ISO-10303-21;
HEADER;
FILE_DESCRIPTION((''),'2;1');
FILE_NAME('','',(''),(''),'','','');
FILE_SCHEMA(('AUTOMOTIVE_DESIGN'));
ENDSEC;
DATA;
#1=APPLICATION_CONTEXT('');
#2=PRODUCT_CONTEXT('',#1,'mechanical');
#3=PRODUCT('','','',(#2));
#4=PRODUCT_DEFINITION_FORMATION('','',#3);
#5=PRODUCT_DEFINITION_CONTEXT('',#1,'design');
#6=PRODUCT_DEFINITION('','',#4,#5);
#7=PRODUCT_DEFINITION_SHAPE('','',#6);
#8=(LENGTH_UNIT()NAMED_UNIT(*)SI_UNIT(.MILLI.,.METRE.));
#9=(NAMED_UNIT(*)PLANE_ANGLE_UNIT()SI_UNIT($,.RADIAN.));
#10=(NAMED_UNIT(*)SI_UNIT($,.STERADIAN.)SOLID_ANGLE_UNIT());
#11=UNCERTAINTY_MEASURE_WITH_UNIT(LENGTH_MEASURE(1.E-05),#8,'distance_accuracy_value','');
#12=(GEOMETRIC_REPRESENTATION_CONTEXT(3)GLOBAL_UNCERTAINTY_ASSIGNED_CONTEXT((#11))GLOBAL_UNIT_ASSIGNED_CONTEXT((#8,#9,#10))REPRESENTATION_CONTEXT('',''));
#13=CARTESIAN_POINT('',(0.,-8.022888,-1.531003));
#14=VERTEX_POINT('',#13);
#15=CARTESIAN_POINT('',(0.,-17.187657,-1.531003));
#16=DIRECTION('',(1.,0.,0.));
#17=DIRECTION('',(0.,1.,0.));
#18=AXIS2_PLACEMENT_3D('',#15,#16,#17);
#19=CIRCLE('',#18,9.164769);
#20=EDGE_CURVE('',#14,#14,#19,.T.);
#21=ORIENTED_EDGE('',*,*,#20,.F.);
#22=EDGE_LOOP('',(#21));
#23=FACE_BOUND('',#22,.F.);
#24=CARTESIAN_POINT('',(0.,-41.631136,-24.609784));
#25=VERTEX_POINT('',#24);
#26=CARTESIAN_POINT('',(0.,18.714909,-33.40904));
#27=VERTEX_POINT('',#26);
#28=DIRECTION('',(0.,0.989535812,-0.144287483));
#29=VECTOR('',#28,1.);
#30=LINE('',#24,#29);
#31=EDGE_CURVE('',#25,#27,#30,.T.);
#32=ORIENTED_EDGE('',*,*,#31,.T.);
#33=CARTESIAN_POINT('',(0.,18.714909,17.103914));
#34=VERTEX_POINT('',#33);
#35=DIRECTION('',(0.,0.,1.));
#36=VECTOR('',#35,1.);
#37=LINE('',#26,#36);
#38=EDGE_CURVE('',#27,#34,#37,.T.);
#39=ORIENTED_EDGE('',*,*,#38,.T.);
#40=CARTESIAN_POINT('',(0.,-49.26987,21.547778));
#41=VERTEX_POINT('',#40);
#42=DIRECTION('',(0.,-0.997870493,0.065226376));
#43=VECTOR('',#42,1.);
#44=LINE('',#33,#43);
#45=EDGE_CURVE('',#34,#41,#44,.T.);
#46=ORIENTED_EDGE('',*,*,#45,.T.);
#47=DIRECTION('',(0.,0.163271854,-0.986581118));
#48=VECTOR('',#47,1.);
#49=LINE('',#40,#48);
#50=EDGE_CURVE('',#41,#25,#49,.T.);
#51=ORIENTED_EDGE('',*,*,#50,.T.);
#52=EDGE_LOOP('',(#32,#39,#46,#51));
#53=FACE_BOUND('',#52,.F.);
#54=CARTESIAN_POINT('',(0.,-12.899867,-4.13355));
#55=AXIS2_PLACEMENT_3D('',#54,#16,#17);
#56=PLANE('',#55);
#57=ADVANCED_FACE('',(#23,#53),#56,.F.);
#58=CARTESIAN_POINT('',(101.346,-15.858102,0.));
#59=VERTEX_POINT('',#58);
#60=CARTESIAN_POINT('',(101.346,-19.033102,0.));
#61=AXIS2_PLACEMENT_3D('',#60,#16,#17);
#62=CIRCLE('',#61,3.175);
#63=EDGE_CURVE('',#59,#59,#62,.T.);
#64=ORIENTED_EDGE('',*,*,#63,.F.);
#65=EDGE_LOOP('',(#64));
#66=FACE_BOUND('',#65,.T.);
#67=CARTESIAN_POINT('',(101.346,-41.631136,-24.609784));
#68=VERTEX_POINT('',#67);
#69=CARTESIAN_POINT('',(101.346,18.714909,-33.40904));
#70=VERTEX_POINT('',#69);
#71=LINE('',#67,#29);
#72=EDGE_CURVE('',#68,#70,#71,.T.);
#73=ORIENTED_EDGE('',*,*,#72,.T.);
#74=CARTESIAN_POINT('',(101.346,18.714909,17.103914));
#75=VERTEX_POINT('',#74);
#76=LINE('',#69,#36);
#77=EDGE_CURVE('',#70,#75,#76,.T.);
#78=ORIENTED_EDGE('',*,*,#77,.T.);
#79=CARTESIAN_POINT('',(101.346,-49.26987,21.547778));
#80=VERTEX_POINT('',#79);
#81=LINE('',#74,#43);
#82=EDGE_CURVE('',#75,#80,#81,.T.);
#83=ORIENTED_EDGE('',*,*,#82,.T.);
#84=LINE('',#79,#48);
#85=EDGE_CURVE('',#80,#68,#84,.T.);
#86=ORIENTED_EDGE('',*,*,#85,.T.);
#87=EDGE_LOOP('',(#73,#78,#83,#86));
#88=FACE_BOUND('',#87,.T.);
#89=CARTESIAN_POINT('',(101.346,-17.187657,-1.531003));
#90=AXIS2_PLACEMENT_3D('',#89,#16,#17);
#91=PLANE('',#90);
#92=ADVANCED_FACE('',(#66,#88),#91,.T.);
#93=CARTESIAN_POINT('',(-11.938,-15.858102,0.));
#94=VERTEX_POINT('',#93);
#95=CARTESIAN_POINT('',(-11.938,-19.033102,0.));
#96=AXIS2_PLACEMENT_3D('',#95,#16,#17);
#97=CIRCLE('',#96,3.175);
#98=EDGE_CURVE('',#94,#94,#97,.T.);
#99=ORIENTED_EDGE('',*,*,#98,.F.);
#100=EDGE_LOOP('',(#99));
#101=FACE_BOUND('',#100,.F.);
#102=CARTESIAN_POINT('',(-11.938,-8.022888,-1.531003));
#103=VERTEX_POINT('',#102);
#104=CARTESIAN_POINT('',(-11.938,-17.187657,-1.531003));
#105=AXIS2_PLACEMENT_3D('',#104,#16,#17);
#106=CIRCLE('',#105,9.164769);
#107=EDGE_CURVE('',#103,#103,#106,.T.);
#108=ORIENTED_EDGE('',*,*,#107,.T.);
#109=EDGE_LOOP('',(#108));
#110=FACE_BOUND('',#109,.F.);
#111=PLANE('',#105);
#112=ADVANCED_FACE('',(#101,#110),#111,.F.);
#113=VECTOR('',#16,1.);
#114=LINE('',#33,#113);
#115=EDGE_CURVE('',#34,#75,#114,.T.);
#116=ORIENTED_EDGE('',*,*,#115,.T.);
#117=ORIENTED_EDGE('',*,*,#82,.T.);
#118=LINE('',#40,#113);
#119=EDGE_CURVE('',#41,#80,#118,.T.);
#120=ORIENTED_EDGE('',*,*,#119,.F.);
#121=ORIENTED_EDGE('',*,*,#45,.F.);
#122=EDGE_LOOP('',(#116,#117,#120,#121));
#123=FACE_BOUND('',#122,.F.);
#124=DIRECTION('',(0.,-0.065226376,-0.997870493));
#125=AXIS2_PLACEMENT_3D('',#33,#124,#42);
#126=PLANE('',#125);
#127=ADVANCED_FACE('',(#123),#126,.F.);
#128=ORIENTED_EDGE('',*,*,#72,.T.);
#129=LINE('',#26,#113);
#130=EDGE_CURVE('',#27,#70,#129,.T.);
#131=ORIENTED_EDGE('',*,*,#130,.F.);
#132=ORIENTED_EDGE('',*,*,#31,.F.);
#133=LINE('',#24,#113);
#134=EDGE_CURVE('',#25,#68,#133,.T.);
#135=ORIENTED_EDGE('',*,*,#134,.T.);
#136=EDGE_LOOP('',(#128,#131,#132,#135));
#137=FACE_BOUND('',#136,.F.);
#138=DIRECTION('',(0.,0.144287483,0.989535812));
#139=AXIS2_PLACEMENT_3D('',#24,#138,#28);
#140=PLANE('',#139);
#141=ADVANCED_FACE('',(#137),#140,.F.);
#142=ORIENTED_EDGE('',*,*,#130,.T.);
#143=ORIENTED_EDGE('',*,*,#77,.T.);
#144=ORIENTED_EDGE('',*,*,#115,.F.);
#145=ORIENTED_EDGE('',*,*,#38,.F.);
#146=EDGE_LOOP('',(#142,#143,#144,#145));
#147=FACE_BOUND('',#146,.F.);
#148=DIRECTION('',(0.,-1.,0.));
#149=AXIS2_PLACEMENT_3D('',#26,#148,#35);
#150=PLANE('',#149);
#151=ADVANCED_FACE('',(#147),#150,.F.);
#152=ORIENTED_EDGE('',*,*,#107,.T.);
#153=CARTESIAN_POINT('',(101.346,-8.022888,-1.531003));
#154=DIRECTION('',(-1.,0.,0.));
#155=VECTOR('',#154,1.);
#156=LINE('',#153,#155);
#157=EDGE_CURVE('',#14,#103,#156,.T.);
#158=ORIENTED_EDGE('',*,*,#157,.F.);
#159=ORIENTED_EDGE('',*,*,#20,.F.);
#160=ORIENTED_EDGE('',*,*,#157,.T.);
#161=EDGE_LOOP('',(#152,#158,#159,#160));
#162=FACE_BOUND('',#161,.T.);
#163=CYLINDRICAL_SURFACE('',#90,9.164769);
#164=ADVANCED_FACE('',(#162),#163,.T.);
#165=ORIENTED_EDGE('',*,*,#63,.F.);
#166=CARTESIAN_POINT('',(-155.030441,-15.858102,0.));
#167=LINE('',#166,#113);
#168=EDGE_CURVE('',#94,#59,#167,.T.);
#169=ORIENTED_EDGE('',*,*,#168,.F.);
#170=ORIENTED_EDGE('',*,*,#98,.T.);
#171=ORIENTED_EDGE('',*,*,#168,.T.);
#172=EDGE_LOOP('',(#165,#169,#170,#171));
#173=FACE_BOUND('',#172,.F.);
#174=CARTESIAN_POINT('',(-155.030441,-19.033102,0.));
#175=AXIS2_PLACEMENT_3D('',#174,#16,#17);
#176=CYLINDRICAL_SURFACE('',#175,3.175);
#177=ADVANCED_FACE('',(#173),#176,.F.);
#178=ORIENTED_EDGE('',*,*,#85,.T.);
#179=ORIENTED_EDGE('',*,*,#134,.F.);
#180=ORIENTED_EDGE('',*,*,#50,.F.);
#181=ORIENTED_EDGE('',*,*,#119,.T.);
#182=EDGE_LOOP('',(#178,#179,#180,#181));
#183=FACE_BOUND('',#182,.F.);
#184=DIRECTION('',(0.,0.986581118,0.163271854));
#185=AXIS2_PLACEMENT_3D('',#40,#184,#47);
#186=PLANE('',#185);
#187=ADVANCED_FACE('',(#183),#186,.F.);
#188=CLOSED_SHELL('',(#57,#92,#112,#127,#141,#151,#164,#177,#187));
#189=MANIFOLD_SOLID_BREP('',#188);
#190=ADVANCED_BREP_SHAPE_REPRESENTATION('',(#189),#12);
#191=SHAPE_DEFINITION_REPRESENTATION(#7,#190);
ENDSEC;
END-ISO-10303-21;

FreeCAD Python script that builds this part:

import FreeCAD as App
import Part
import Sketcher

V = App.Vector
Q = App.Units.Quantity


def add_polygon(sketch, points):
    """Adds a closed chain of lines whose ends are joined by coincident constraints."""
    first, n = sketch.GeometryCount, len(points)
    for a, b in zip(points, points[1:] + points[:1]):
        sketch.addGeometry(Part.LineSegment(App.Vector(*a, 0), App.Vector(*b, 0)), False)
    for i in range(n):
        sketch.addConstraint(Sketcher.Constraint("Coincident", first + i, 2, first + (i + 1) % n, 1))

doc = App.newDocument("Part")
body = doc.addObject("PartDesign::Body", "Body")

sketch1 = body.newObject("Sketcher::SketchObject", "Sketch")
sketch1.AttachmentSupport = (doc.getObject("YZ_Plane"), [""])
sketch1.MapMode = "FlatFace"
add_polygon(sketch1, [(19, 17), (-49, 22), (-42, -25), (19, -33)])
sketch1.addConstraint(Sketcher.Constraint("Vertical", 3))
sketch1.addConstraint(Sketcher.Constraint("Distance", 1, 46.785369))
sketch1.addConstraint(Sketcher.Constraint("DistanceY", 3, 1, 3, 2, 50.512954))
sketch1.addConstraint(Sketcher.Constraint("DistanceX", 0, 2, -1, 1, 49.26987))
sketch1.addConstraint(Sketcher.Constraint("DistanceY", -1, 1, 0, 2, 21.547778))
sketch1.addConstraint(Sketcher.Constraint("DistanceX", -1, 1, 2, 2, 18.714909))
sketch1.addConstraint(Sketcher.Constraint("DistanceY", 2, 2, -1, 1, 33.40904))
sketch1.addConstraint(Sketcher.Constraint("Distance", 2, 60.984195))
pad1 = body.newObject("PartDesign::Pad", "Pad")
pad1.Profile = sketch1
pad1.Length = Q("3.99 in")

sketch2 = body.newObject("Sketcher::SketchObject", "Sketch001")
sketch2.AttachmentSupport = (doc.getObject("YZ_Plane"), [""])
sketch2.MapMode = "FlatFace"
sketch2.AttachmentOffset = App.Placement(V(0, 0, 3.99 * 25.4), App.Rotation())
sketch2.addGeometry(Part.Circle(V(-17, -2, 0), V(0, 0, 1), 9), False)
sketch2.addConstraint(Sketcher.Constraint("Diameter", 0, 18.329538))
sketch2.addConstraint(Sketcher.Constraint("DistanceX", 0, 3, -1, 1, 17.187657))
sketch2.addConstraint(Sketcher.Constraint("DistanceY", 0, 3, -1, 1, 1.531003))
pad2 = body.newObject("PartDesign::Pad", "Pad001")
pad2.Profile = sketch2
pad2.Length = Q("4.46 in")
pad2.Reversed = True

sketch3 = body.newObject("Sketcher::SketchObject", "Sketch002")
sketch3.AttachmentSupport = (doc.getObject("YZ_Plane"), [""])
sketch3.MapMode = "FlatFace"
sketch3.AttachmentOffset = App.Placement(V(0, 0, -0.47 * 25.4), App.Rotation())
sketch3.addGeometry(Part.Circle(V(-19, 0, 0), V(0, 0, 1), 3.2), False)
sketch3.addConstraint(Sketcher.Constraint("PointOnObject", 0, 3, -1))
sketch3.addConstraint(Sketcher.Constraint("Diameter", 0, Q("0.25 in")))
sketch3.addConstraint(Sketcher.Constraint("DistanceX", 0, 3, -1, 1, 19.033102))
doc.recompute()
hole = body.newObject("PartDesign::Hole", "Hole")
hole.Profile = sketch3
hole.ThreadType = "None"
hole.Diameter = Q("0.25 in")
hole.DepthType = "ThroughAll"
hole.Reversed = True

doc.recompute()
